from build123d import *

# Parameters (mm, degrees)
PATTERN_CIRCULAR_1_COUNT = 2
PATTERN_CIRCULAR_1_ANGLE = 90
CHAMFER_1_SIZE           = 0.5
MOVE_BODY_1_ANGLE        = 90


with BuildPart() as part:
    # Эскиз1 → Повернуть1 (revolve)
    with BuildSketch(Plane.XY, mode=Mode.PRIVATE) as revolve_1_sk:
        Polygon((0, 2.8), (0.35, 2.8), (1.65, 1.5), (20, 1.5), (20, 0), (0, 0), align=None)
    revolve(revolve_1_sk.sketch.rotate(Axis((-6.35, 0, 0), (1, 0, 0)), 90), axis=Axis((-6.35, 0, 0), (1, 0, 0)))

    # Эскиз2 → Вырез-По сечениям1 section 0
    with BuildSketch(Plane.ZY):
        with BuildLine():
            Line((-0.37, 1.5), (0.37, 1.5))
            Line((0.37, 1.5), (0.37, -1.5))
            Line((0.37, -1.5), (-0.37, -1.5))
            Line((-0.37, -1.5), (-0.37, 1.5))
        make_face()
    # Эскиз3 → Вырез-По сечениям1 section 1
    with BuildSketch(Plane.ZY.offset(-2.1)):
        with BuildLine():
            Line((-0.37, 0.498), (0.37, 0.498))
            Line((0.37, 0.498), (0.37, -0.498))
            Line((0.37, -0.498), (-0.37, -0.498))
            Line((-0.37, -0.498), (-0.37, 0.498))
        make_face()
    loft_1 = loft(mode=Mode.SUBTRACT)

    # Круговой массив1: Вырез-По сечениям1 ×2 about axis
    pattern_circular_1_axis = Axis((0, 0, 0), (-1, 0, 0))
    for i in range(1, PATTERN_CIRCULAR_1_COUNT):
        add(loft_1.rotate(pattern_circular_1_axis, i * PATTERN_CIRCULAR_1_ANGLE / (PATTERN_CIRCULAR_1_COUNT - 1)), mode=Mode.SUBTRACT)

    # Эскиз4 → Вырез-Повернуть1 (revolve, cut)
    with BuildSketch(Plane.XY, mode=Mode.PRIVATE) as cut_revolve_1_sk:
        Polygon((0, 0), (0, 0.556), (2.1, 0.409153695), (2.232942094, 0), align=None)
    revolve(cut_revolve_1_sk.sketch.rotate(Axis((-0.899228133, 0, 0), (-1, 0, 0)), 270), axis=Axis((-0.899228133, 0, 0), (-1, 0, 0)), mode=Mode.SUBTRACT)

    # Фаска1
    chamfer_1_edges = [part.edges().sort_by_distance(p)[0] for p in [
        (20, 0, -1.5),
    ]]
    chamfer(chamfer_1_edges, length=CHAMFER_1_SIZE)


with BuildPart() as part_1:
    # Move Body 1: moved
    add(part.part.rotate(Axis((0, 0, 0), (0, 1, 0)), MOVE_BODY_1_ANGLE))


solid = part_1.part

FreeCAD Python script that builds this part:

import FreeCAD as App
import Part
import Sketcher

V = App.Vector
Q = App.Units.Quantity


def edges_at(feature, points):
    """Names of the edges that pass closest to the given points."""
    edges = feature.Shape.Edges
    near = lambda p: min(range(len(edges)), key=lambda i: edges[i].distToShape(Part.Vertex(*p))[0])
    return sorted({f"Edge{near(p) + 1}" for p in points})


def add_polygon(sketch, points):
    """Adds a closed chain of lines whose ends are joined by coincident constraints."""
    first, n = sketch.GeometryCount, len(points)
    for a, b in zip(points, points[1:] + points[:1]):
        sketch.addGeometry(Part.LineSegment(App.Vector(*a, 0), App.Vector(*b, 0)), False)
    for i in range(n):
        sketch.addConstraint(Sketcher.Constraint("Coincident", first + i, 2, first + (i + 1) % n, 1))

doc = App.newDocument("Part")
body = doc.addObject("PartDesign::Body", "Body")

# Sketch on XY plane
sketch1 = body.newObject("Sketcher::SketchObject", "Sketch")
sketch1.AttachmentSupport = (doc.getObject("XY_Plane"), [""])
sketch1.MapMode = "FlatFace"
add_polygon(sketch1, [(0.35, 2.8), (0, 2.8), (0, 0), (20, 0), (20, 1.5), (1.65, 1.5)])  # lines 0-5
sketch1.addConstraint([
    Sketcher.Constraint("Horizontal", 0),
    Sketcher.Constraint("Vertical", 1),
    Sketcher.Constraint("Horizontal", 2),
    Sketcher.Constraint("Vertical", 3),
    Sketcher.Constraint("Horizontal", 4),
    Sketcher.Constraint("Coincident", 1, 2, -1, 1),
    Sketcher.Constraint("DistanceX", 2, 1, 2, 2, Q("20 mm")),
    Sketcher.Constraint("Angle", 5, Q("135 deg")),
    Sketcher.Constraint("DistanceY", 1, 2, 1, 1, Q("2.8 mm")),
    Sketcher.Constraint("DistanceY", 3, 1, 3, 2, Q("1.5 mm")),
    Sketcher.Constraint("DistanceX", 0, 2, 0, 1, Q("0.35 mm")),
])
revolution = body.newObject("PartDesign::Revolution", "Revolution")
revolution.Profile = sketch1
revolution.ReferenceAxis = (sketch1, ["H_Axis"])
revolution.Angle = 360

# Sketch on YZ plane
sketch2 = body.newObject("Sketcher::SketchObject", "Sketch001")
sketch2.AttachmentSupport = (doc.getObject("YZ_Plane"), [""])
sketch2.MapMode = "FlatFace"
add_polygon(sketch2, [(1.5, 0.4), (1.5, -0.4), (-1.5, -0.4), (-1.5, 0.4)])  # lines 0-3
sketch2.addConstraint([
    Sketcher.Constraint("Vertical", 0),
    Sketcher.Constraint("Horizontal", 1),
    Sketcher.Constraint("Vertical", 2),
    Sketcher.Constraint("Horizontal", 3),
    Sketcher.Constraint("Symmetric", 0, 2, 2, 2, -1, 1),
    Sketcher.Constraint("DistanceX", 1, 2, 1, 1, Q("3 mm")),
    Sketcher.Constraint("DistanceY", 0, 2, 0, 1, Q("0.74 mm")),
])

# Sketch on YZ plane
sketch3 = body.newObject("Sketcher::SketchObject", "Sketch002")
sketch3.AttachmentSupport = (doc.getObject("YZ_Plane"), [""])
sketch3.MapMode = "FlatFace"
sketch3.AttachmentOffset = App.Placement(V(0, 0, 2.1), App.Rotation())
add_polygon(sketch3, [(0.5, 0.4), (0.5, -0.4), (-0.5, -0.4), (-0.5, 0.4)])  # lines 0-3
sketch3.addConstraint([
    Sketcher.Constraint("Vertical", 0),
    Sketcher.Constraint("Horizontal", 1),
    Sketcher.Constraint("Vertical", 2),
    Sketcher.Constraint("Horizontal", 3),
    Sketcher.Constraint("Symmetric", 0, 2, 2, 2, -1, 1),
    Sketcher.Constraint("DistanceY", 0, 2, 0, 1, Q("0.74 mm")),
    Sketcher.Constraint("DistanceX", 1, 2, 1, 1, Q("0.996 mm")),
])

subtractiveloft = body.newObject("PartDesign::SubtractiveLoft", "SubtractiveLoft")
subtractiveloft.Profile = sketch2
subtractiveloft.Sections = [sketch3]
doc.recompute()

polarpattern = body.newObject("PartDesign::PolarPattern", "PolarPattern")
polarpattern.Originals = [subtractiveloft]
polarpattern.Axis = (doc.getObject("X_Axis"), [""])
polarpattern.Angle = 90
polarpattern.Occurrences = 2
polarpattern.Reversed = True
body.Tip = polarpattern

# Sketch on XY plane
sketch4 = body.newObject("Sketcher::SketchObject", "Sketch003")
sketch4.AttachmentSupport = (doc.getObject("XY_Plane"), [""])
sketch4.MapMode = "FlatFace"
add_polygon(sketch4, [(0, 0.56), (0, 0), (2.23, 0), (2.1, 0.41)])  # lines 0-3
sketch4.addConstraint([
    Sketcher.Constraint("Vertical", 0),
    Sketcher.Constraint("Horizontal", 1),
    Sketcher.Constraint("Coincident", 0, 2, -1, 1),
    Sketcher.Constraint("Angle", 2, Q("108 deg")),
    Sketcher.Constraint("Angle", 3, Q("176 deg")),
    Sketcher.Constraint("DistanceX", -1, 1, 2, 2, Q("2.1 mm")),
    Sketcher.Constraint("DistanceY", 0, 2, 0, 1, Q("0.556 mm")),
])
groove = body.newObject("PartDesign::Groove", "Groove")
groove.Profile = sketch4
groove.ReferenceAxis = (sketch4, ["H_Axis"])
groove.Angle = 360
doc.recompute()

chamfer = body.newObject("PartDesign::Chamfer", "Chamfer")
chamfer.Base = (groove, edges_at(groove, [(20, 0, -1.5)]))
chamfer.Size = 0.5
body2 = doc.addObject("PartDesign::Body", "Body001")
doc.recompute()

body.Placement = App.Placement(V(0, 0, 0), App.Rotation(V(0, 1, 0), 90))
boolean = body2.newObject("PartDesign::Boolean", "Boolean")
boolean.Type = "Fuse"
boolean.addObjects([body])

doc.recompute()
